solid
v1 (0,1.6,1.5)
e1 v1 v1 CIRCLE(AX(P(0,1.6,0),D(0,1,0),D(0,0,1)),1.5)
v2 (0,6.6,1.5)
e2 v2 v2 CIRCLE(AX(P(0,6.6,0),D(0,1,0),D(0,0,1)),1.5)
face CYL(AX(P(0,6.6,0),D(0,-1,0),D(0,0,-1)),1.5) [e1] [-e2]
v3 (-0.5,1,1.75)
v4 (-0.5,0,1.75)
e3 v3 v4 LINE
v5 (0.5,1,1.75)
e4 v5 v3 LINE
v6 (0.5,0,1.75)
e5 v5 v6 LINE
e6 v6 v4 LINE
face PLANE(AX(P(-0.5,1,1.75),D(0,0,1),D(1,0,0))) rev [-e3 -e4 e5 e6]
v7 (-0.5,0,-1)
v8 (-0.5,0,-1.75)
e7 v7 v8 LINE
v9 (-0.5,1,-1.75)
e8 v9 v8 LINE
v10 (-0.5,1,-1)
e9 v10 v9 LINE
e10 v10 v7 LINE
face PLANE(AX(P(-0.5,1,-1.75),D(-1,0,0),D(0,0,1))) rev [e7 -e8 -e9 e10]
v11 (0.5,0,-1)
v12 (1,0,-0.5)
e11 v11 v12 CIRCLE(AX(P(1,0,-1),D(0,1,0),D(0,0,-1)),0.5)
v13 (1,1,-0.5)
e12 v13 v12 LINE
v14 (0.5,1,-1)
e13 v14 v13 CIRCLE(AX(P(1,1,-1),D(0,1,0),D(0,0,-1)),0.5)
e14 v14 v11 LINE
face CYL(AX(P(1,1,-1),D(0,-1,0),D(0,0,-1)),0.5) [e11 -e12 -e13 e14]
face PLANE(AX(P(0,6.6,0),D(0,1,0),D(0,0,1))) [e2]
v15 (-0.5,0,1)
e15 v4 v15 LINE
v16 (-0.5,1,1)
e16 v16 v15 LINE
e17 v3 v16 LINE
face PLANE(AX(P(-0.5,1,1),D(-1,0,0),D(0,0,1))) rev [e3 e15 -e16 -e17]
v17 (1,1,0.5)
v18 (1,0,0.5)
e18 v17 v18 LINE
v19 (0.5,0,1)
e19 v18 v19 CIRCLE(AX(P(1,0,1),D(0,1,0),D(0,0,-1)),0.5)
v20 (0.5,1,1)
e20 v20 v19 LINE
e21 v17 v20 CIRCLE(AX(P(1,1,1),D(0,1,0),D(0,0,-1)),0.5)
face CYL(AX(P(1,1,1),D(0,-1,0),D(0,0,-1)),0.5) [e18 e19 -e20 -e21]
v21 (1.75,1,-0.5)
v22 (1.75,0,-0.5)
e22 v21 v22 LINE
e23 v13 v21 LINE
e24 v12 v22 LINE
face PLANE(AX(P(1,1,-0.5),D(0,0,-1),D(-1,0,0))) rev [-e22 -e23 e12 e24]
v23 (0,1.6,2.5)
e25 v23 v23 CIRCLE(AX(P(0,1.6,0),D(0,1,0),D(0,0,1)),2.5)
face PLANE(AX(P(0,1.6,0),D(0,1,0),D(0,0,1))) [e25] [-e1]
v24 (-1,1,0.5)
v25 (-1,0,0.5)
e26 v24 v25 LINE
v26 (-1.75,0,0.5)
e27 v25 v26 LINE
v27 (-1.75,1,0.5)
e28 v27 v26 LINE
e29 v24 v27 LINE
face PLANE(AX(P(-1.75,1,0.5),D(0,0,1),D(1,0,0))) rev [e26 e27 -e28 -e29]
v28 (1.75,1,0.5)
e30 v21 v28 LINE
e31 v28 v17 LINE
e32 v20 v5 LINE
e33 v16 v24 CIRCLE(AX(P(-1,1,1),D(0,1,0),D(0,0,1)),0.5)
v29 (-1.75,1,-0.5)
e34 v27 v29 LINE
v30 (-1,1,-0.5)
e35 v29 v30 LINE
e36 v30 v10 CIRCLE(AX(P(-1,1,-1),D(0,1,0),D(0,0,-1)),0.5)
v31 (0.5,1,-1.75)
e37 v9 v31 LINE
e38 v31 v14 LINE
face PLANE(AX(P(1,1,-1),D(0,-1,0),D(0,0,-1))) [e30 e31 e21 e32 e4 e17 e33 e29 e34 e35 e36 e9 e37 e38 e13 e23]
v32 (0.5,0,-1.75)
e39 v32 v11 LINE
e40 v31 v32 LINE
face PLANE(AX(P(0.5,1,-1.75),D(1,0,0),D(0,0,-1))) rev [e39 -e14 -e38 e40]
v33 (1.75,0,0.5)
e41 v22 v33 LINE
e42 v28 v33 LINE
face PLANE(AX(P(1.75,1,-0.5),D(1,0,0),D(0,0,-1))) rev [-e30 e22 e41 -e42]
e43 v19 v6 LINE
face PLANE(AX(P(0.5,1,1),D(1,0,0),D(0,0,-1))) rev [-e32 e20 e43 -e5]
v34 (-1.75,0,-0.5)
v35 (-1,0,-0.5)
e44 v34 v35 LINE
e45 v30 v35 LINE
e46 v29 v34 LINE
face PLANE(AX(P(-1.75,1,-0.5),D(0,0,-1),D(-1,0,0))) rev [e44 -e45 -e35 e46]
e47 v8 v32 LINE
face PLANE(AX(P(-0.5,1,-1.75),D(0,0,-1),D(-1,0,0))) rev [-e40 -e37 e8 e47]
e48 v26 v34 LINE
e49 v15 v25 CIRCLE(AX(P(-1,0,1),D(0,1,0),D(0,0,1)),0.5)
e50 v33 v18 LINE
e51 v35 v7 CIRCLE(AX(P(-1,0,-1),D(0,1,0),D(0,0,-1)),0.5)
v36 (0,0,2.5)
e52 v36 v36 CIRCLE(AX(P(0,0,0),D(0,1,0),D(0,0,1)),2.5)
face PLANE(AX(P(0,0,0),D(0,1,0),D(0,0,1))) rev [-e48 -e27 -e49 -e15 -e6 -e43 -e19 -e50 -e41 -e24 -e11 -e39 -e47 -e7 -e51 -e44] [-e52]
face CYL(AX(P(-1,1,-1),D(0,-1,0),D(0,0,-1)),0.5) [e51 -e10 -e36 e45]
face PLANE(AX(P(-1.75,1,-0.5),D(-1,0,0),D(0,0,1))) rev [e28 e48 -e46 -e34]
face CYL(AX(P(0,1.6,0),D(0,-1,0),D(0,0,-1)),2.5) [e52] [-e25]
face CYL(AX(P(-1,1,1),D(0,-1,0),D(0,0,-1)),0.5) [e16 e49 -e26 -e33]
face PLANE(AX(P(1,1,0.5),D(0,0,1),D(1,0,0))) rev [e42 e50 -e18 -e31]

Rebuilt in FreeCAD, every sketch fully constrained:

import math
import FreeCAD as App
import Part
import Sketcher
Q = App.Units.Quantity

doc = App.newDocument("Part")
body = doc.addObject("PartDesign::Body", "Body")

# Sketch on XZ plane
sketch1 = body.newObject("Sketcher::SketchObject", "Sketch")
sketch1.AttachmentSupport = (doc.getObject("XZ_Plane"), [""])
sketch1.MapMode = "FlatFace"
sketch1.addGeometry(Part.Circle(App.Vector(0, 0, 0), App.Vector(0, 0, 1), 2.5), False)
sketch1.addConstraint([
    Sketcher.Constraint("Coincident", 0, 3, -1, 1),
    Sketcher.Constraint("Diameter", 0, Q("5 mm")),
])
pad1 = body.newObject("PartDesign::Pad", "Pad")
pad1.Profile = sketch1
pad1.Length = 1.6
pad1.Reversed = True

# Sketch on XZ plane
sketch2 = body.newObject("Sketcher::SketchObject", "Sketch001")
sketch2.AttachmentSupport = (doc.getObject("XZ_Plane"), [""])
sketch2.MapMode = "FlatFace"
sketch2.AttachmentOffset = App.Placement(App.Vector(0, 0, -1.6), App.Rotation())
sketch2.addGeometry(Part.Circle(App.Vector(0, 0, 0), App.Vector(0, 0, 1), 1.5), False)
sketch2.addConstraint([
    Sketcher.Constraint("Coincident", 0, 3, -1, 1),
    Sketcher.Constraint("Diameter", 0, Q("3 mm")),
])
pad2 = body.newObject("PartDesign::Pad", "Pad001")
pad2.Profile = sketch2
pad2.Length = 5
pad2.Reversed = True

# Sketch on XZ plane
sketch3 = body.newObject("Sketcher::SketchObject", "Sketch002")
sketch3.AttachmentSupport = (doc.getObject("XZ_Plane"), [""])
sketch3.MapMode = "FlatFace"
sketch3.addGeometry([
    Part.LineSegment(App.Vector(-0.5, 1.75, 0), App.Vector(-0.5, 1, 0)),  # 0
    Part.ArcOfCircle(Part.Circle(App.Vector(-1, 1, 0), App.Vector(0, 0, 1), 0.5), math.radians(-90), math.radians(0)),  # 1
    Part.LineSegment(App.Vector(-1, 0.5, 0), App.Vector(-1.75, 0.5, 0)),  # 2
    Part.LineSegment(App.Vector(-1.75, 0.5, 0), App.Vector(-1.75, -0.5, 0)),  # 3
    Part.LineSegment(App.Vector(-1.75, -0.5, 0), App.Vector(-1, -0.5, 0)),  # 4
    Part.ArcOfCircle(Part.Circle(App.Vector(-1, -1, 0), App.Vector(0, 0, 1), 0.5), math.radians(0), math.radians(90)),  # 5
    Part.LineSegment(App.Vector(-0.5, -1, 0), App.Vector(-0.5, -1.75, 0)),  # 6
    Part.LineSegment(App.Vector(-0.5, -1.75, 0), App.Vector(0.5, -1.75, 0)),  # 7
    Part.LineSegment(App.Vector(0.5, -1.75, 0), App.Vector(0.5, -1, 0)),  # 8
    Part.ArcOfCircle(Part.Circle(App.Vector(1, -1, 0), App.Vector(0, 0, 1), 0.5), math.radians(90), math.radians(180)),  # 9
    Part.LineSegment(App.Vector(1, -0.5, 0), App.Vector(1.75, -0.5, 0)),  # 10
    Part.LineSegment(App.Vector(1.75, -0.5, 0), App.Vector(1.75, 0.5, 0)),  # 11
    Part.LineSegment(App.Vector(1.75, 0.5, 0), App.Vector(1, 0.5, 0)),  # 12
    Part.ArcOfCircle(Part.Circle(App.Vector(1, 1, 0), App.Vector(0, 0, 1), 0.5), math.radians(180), math.radians(270)),  # 13
    Part.LineSegment(App.Vector(0.5, 1, 0), App.Vector(0.5, 1.75, 0)),  # 14
    Part.LineSegment(App.Vector(0.5, 1.75, 0), App.Vector(-0.5, 1.75, 0)),  # 15
], False)
sketch3.addConstraint([
    Sketcher.Constraint("Tangent", 0, 2, 1, 2),
    Sketcher.Constraint("Tangent", 1, 1, 2, 1),
    Sketcher.Constraint("Coincident", 2, 2, 3, 1),
    Sketcher.Constraint("Coincident", 3, 2, 4, 1),
    Sketcher.Constraint("Tangent", 4, 2, 5, 2),
    Sketcher.Constraint("Tangent", 5, 1, 6, 1),
    Sketcher.Constraint("Coincident", 6, 2, 7, 1),
    Sketcher.Constraint("Coincident", 7, 2, 8, 1),
    Sketcher.Constraint("Tangent", 8, 2, 9, 2),
    Sketcher.Constraint("Tangent", 9, 1, 10, 1),
    Sketcher.Constraint("Coincident", 10, 2, 11, 1),
    Sketcher.Constraint("Coincident", 11, 2, 12, 1),
    Sketcher.Constraint("Tangent", 12, 2, 13, 2),
    Sketcher.Constraint("Tangent", 13, 1, 14, 1),
    Sketcher.Constraint("Coincident", 14, 2, 15, 1),
    Sketcher.Constraint("Coincident", 15, 2, 0, 1),
    Sketcher.Constraint("Vertical", 0),
    Sketcher.Constraint("Horizontal", 2),
    Sketcher.Constraint("Vertical", 3),
    Sketcher.Constraint("Horizontal", 4),
    Sketcher.Constraint("Vertical", 6),
    Sketcher.Constraint("Horizontal", 7),
    Sketcher.Constraint("Vertical", 8),
    Sketcher.Constraint("Horizontal", 10),
    Sketcher.Constraint("Vertical", 11),
    Sketcher.Constraint("Horizontal", 12),
    Sketcher.Constraint("Vertical", 14),
    Sketcher.Constraint("Horizontal", 15),
    Sketcher.Constraint("Equal", 1, 5),
    Sketcher.Constraint("Equal", 5, 9),
    Sketcher.Constraint("Equal", 9, 13),
    Sketcher.Constraint("Symmetric", 1, 3, 9, 3, -1, 1),
    Sketcher.Constraint("Symmetric", 5, 3, 13, 3, -1, 1),
    Sketcher.Constraint("Symmetric", 5, 3, 9, 3, -2),
    Sketcher.Constraint("Equal", 4, 10),
    Sketcher.Constraint("Equal", 12, 0),
    Sketcher.Constraint("Equal", 15, 3),
    Sketcher.Constraint("Equal", 0, 6),
    Sketcher.Constraint("Radius", 1, Q("0.5 mm")),
    Sketcher.Constraint("DistanceX", 7, 1, 7, 2, Q("1 mm")),
    Sketcher.Constraint("DistanceX", 2, 2, 2, 1, Q("0.75 mm")),
])
pocket1 = body.newObject("PartDesign::Pocket", "Pocket")
pocket1.Profile = sketch3
pocket1.Length = 1

doc.recompute()
